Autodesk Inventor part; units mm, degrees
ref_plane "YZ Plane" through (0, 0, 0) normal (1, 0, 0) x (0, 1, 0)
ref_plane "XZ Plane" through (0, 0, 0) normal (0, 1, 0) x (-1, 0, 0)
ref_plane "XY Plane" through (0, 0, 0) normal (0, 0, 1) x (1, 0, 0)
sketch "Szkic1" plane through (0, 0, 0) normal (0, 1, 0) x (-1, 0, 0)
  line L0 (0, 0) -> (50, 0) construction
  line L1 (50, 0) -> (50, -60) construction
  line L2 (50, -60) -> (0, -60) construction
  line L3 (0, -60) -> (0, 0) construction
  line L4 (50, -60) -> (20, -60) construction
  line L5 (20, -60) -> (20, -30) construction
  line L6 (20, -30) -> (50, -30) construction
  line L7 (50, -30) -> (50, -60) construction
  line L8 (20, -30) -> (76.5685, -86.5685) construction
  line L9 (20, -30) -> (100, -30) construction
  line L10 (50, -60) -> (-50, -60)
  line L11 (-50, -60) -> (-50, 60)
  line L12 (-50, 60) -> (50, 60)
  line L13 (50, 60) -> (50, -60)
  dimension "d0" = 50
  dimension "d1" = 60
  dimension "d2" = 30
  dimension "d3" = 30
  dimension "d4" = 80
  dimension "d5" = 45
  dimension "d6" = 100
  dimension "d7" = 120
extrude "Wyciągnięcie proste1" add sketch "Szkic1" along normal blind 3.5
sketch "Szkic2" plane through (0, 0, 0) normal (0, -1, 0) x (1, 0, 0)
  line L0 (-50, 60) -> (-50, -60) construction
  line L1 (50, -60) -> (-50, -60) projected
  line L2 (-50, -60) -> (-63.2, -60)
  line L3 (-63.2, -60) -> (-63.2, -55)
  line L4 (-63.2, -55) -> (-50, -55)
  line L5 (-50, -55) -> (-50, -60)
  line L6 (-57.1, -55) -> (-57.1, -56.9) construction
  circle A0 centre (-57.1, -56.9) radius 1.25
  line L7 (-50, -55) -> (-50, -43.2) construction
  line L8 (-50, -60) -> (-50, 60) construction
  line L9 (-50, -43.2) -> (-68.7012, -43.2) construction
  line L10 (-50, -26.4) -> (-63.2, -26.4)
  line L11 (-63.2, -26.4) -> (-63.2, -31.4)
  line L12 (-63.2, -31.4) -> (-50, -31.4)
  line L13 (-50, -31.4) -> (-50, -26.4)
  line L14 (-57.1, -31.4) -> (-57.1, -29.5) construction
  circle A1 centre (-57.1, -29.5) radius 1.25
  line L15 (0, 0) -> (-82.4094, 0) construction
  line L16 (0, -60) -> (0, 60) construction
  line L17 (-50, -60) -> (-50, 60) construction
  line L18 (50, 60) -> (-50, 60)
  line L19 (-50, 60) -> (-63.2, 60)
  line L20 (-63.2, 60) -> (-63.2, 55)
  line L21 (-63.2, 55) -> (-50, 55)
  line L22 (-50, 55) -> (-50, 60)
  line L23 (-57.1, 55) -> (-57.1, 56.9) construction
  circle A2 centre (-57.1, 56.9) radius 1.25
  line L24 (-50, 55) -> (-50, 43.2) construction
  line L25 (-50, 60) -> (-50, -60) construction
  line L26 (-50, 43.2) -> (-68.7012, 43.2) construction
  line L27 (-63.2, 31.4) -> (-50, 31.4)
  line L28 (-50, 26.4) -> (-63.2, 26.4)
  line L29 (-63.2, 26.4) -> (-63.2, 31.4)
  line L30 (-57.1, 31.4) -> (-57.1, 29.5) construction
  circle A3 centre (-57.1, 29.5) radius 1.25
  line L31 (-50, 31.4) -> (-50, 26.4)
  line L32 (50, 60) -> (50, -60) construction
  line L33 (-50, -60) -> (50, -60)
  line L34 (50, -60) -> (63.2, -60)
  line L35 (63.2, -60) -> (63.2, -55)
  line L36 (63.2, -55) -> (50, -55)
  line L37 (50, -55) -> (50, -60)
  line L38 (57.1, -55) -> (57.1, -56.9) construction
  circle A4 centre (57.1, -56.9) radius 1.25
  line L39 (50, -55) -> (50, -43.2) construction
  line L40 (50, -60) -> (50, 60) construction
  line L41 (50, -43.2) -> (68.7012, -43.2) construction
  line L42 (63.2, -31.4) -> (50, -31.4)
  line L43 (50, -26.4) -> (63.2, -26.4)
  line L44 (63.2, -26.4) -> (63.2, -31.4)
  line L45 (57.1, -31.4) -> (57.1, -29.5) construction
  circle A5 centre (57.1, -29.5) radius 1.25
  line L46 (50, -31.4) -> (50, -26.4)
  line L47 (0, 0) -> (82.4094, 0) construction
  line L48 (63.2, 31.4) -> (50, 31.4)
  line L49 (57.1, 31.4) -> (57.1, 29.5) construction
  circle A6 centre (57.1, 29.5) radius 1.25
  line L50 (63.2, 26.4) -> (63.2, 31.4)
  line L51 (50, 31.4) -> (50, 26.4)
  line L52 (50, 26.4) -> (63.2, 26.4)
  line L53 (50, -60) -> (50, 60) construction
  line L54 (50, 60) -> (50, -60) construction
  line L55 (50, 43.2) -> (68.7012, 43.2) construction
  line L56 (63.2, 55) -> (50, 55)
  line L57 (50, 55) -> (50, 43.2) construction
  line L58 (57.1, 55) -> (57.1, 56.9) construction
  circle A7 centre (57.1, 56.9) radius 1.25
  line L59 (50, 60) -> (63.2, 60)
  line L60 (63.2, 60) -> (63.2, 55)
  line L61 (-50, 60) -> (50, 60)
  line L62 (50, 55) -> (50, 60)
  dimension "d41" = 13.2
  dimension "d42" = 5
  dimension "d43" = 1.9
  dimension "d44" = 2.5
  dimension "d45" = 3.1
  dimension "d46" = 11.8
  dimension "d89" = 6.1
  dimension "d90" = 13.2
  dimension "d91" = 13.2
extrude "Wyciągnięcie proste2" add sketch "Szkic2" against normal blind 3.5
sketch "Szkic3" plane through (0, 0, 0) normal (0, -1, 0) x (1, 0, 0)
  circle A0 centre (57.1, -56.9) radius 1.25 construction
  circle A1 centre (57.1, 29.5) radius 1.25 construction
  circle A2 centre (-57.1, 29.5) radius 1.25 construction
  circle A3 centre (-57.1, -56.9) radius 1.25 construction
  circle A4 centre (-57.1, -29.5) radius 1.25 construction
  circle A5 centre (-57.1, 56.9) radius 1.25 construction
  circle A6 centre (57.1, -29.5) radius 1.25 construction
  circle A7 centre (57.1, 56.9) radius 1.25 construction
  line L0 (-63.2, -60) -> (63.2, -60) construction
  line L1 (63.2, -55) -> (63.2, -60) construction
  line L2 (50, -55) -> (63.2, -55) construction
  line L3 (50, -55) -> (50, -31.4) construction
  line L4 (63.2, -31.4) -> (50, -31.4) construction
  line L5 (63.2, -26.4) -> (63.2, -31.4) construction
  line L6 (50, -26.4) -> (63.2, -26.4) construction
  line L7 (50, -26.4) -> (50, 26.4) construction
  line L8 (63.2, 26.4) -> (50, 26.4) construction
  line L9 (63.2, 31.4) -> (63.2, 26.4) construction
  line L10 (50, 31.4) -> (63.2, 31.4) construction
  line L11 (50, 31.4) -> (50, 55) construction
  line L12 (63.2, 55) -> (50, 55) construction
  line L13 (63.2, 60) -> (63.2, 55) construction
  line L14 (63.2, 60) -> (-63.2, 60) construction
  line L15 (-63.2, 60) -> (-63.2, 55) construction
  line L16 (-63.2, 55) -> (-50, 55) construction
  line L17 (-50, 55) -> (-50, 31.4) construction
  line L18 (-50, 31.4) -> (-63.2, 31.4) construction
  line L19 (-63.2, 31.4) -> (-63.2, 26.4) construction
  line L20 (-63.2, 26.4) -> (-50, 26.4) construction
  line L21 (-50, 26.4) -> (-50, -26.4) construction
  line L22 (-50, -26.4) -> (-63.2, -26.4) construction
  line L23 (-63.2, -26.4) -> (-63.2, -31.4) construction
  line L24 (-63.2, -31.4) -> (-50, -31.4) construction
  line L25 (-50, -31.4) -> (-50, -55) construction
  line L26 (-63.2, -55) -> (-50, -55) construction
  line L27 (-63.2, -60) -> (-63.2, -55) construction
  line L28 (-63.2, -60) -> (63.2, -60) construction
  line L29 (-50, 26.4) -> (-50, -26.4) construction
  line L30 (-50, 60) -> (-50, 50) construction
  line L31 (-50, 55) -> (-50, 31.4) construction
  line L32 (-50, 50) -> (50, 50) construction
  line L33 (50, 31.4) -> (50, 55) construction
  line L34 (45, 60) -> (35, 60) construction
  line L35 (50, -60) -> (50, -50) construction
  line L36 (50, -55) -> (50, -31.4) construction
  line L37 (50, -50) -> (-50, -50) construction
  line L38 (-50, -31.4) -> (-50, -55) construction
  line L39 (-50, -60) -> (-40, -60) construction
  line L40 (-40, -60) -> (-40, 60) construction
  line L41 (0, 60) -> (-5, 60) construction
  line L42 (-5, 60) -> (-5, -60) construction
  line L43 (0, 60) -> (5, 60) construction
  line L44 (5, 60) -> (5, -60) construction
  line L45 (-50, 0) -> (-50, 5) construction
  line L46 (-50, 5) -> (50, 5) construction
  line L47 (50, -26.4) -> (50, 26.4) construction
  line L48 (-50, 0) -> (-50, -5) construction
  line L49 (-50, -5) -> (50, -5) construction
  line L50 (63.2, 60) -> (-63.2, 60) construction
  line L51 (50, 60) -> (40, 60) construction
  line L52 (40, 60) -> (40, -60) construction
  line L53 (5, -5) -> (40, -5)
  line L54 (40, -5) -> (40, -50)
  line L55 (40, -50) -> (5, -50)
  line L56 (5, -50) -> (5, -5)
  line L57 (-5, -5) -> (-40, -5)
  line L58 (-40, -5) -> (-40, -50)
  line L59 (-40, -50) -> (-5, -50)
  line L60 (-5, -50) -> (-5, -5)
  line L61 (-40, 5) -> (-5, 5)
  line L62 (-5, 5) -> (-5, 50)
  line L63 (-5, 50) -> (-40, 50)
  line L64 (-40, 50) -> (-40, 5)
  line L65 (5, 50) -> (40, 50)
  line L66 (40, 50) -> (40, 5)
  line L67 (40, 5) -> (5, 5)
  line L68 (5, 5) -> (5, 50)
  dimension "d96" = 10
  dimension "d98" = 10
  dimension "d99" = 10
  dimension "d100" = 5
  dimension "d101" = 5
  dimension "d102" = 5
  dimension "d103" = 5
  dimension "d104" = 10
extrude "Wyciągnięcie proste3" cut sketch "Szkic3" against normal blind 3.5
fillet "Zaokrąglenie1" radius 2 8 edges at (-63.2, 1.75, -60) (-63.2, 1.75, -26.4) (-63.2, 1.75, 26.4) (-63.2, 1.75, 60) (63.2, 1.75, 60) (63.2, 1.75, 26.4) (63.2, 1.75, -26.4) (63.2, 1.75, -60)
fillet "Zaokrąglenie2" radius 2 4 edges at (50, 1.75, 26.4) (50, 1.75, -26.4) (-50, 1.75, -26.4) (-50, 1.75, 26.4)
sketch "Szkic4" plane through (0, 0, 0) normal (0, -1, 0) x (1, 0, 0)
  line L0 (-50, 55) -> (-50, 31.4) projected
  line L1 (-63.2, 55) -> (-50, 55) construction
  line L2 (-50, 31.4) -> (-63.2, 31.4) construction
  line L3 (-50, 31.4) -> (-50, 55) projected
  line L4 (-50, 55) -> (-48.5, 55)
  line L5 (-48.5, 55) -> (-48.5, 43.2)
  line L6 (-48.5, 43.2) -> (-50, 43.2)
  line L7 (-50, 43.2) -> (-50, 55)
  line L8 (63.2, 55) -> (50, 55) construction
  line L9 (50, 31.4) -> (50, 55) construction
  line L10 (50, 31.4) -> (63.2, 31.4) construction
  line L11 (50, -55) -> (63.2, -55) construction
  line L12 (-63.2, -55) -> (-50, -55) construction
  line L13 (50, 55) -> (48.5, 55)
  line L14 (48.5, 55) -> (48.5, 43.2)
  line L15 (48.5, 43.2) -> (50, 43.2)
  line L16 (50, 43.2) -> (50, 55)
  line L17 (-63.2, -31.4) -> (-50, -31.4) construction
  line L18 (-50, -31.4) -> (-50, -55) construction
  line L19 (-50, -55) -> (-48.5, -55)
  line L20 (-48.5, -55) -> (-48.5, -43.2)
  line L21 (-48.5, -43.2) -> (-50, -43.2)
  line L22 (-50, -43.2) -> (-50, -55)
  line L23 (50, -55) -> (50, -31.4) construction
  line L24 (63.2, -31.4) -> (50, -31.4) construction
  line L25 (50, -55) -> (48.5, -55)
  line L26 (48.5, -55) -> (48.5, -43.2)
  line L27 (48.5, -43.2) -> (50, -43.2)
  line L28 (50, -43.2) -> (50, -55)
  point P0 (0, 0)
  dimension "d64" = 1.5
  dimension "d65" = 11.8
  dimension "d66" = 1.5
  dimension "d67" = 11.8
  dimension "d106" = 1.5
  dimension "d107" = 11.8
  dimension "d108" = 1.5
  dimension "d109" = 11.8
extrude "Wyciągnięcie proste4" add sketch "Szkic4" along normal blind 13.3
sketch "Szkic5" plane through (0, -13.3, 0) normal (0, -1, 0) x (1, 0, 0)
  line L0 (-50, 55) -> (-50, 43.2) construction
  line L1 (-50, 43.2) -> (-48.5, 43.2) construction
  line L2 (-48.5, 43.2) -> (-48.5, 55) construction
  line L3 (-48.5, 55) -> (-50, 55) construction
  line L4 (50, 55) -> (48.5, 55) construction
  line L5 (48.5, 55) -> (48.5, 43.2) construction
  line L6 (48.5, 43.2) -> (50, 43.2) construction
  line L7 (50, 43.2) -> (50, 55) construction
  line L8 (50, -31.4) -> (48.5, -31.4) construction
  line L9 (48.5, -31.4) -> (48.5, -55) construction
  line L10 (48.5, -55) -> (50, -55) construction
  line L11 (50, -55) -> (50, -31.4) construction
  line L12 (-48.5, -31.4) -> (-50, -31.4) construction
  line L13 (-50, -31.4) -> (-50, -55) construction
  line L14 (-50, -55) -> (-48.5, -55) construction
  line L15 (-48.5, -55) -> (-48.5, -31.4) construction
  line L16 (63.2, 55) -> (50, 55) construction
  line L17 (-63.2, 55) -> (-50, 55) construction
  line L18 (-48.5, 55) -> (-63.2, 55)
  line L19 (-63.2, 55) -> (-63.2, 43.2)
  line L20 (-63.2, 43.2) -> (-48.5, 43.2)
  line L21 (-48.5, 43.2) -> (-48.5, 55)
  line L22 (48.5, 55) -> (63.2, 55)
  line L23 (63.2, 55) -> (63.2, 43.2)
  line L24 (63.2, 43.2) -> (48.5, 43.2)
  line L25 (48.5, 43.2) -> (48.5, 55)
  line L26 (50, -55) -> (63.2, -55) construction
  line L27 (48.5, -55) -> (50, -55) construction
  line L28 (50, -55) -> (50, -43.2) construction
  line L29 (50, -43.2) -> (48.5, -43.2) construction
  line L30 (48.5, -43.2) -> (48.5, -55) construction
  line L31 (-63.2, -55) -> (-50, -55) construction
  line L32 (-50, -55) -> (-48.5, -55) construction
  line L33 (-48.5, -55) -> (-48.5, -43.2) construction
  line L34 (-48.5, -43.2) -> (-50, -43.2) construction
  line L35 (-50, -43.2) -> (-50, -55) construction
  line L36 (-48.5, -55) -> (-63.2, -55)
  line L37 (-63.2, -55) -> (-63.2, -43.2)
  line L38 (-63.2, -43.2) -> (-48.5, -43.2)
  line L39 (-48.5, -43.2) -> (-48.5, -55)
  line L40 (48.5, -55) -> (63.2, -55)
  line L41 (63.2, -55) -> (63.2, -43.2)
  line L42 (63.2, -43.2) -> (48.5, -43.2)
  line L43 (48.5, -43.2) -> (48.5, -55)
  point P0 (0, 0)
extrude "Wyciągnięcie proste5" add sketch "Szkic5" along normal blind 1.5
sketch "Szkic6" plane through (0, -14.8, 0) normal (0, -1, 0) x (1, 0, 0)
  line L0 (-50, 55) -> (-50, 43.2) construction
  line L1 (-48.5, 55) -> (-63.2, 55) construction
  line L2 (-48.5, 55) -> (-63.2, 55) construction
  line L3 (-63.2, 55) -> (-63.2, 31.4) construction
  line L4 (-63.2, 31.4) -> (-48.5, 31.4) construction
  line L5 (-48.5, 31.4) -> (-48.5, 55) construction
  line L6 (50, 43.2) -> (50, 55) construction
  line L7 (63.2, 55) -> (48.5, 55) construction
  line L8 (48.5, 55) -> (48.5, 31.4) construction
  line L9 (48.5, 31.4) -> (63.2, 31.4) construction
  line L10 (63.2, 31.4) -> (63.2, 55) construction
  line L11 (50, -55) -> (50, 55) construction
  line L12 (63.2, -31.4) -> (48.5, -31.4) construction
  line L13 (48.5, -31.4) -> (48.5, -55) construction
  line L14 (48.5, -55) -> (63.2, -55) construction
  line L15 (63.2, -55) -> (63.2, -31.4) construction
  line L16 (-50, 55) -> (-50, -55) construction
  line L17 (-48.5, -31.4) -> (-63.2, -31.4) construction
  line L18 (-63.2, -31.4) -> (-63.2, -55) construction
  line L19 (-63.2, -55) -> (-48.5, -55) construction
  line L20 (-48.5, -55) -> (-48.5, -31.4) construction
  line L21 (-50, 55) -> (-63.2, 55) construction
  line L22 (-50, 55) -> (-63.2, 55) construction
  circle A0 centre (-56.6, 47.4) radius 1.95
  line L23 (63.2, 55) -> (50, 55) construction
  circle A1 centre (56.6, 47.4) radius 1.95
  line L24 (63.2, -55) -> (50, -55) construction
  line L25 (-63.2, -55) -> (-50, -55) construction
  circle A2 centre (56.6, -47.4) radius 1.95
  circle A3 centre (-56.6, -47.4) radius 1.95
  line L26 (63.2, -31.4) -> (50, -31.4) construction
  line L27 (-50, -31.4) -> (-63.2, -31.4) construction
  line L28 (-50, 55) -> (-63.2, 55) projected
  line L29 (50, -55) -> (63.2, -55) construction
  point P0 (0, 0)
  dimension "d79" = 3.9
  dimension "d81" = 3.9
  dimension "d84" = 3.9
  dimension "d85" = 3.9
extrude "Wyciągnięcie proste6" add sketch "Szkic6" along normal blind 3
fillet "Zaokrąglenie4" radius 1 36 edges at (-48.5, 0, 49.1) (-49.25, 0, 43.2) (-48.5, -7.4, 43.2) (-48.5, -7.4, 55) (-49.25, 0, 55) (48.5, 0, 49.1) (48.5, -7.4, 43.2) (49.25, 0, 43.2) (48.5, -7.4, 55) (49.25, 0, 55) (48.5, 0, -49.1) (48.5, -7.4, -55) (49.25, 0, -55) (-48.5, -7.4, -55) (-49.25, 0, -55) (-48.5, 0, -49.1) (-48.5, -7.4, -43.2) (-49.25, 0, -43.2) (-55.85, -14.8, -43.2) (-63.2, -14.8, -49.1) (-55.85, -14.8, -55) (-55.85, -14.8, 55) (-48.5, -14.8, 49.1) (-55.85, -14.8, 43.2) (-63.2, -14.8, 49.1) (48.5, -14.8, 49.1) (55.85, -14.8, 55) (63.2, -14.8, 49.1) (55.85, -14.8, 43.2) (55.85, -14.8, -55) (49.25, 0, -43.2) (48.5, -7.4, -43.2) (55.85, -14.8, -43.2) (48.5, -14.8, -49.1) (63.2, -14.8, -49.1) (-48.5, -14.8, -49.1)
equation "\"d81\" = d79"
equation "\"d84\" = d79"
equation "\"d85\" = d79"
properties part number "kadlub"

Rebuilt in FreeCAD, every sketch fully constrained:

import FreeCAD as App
import Part
import Sketcher
from FreeCAD import Vector


def edges_at(feature, points):
    """Names of the edges that pass closest to the given points."""
    edges = feature.Shape.Edges
    near = lambda p: min(range(len(edges)), key=lambda i: edges[i].distToShape(Part.Vertex(*p))[0])
    return sorted({f"Edge{near(p) + 1}" for p in points})

doc = App.newDocument("Part")
body = doc.addObject("PartDesign::Body", "Body")

# Sketch on XZ plane
sketch1 = body.newObject("Sketcher::SketchObject", "Sketch")
sketch1.AttachmentSupport = (doc.getObject("XZ_Plane"), [""])
sketch1.MapMode = "FlatFace"
sketch1.addGeometry(Part.LineSegment(Vector(50, -60, 0), Vector(-50, -60, 0)), False)
sketch1.addGeometry(Part.LineSegment(Vector(-50, -60, 0), Vector(-50, 60, 0)), False)
sketch1.addGeometry(Part.LineSegment(Vector(-50, 60, 0), Vector(50, 60, 0)), False)
sketch1.addGeometry(Part.LineSegment(Vector(50, 60, 0), Vector(50, -60, 0)), False)
sketch1.addConstraint(Sketcher.Constraint("Coincident", 0, 2, 1, 1))
sketch1.addConstraint(Sketcher.Constraint("Coincident", 1, 2, 2, 1))
sketch1.addConstraint(Sketcher.Constraint("Coincident", 2, 2, 3, 1))
sketch1.addConstraint(Sketcher.Constraint("Coincident", 3, 2, 0, 1))
sketch1.addConstraint(Sketcher.Constraint("Horizontal", 0))
sketch1.addConstraint(Sketcher.Constraint("Vertical", 1))
sketch1.addConstraint(Sketcher.Constraint("Horizontal", 2))
sketch1.addConstraint(Sketcher.Constraint("Vertical", 3))
sketch1.addConstraint(Sketcher.Constraint("Symmetric", 0, 2, 2, 2, -1, 1))
sketch1.addConstraint(Sketcher.Constraint("DistanceX", 0, 2, 0, 1, 100.0))
sketch1.addConstraint(Sketcher.Constraint("DistanceY", 1, 1, 1, 2, 120.0))
pad1 = body.newObject("PartDesign::Pad", "Pad")
pad1.Profile = sketch1
pad1.Length = 3.5
pad1.Reversed = True

# Sketch on XZ plane
sketch2 = body.newObject("Sketcher::SketchObject", "Sketch001")
sketch2.AttachmentSupport = (doc.getObject("XZ_Plane"), [""])
sketch2.MapMode = "FlatFace"
sketch2.addGeometry(Part.LineSegment(Vector(-63.2, -60, 0), Vector(-50, -60, 0)), False)
sketch2.addGeometry(Part.LineSegment(Vector(-50, -60, 0), Vector(-50, -55, 0)), False)
sketch2.addGeometry(Part.LineSegment(Vector(-50, -55, 0), Vector(-63.2, -55, 0)), False)
sketch2.addGeometry(Part.LineSegment(Vector(-63.2, -55, 0), Vector(-63.2, -60, 0)), False)
sketch2.addGeometry(Part.Circle(Vector(-57.1, -56.9, 0), Vector(0, 0, 1), 1.25), False)
sketch2.addGeometry(Part.LineSegment(Vector(50, -55, 0), Vector(50, -60, 0)), False)
sketch2.addGeometry(Part.LineSegment(Vector(50, -60, 0), Vector(63.2, -60, 0)), False)
sketch2.addGeometry(Part.LineSegment(Vector(63.2, -60, 0), Vector(63.2, -55, 0)), False)
sketch2.addGeometry(Part.LineSegment(Vector(63.2, -55, 0), Vector(50, -55, 0)), False)
sketch2.addGeometry(Part.Circle(Vector(57.1, -56.9, 0), Vector(0, 0, 1), 1.25), False)
sketch2.addGeometry(Part.LineSegment(Vector(-50, -31.4, 0), Vector(-50, -26.4, 0)), False)
sketch2.addGeometry(Part.LineSegment(Vector(-50, -26.4, 0), Vector(-63.2, -26.4, 0)), False)
sketch2.addGeometry(Part.LineSegment(Vector(-63.2, -26.4, 0), Vector(-63.2, -31.4, 0)), False)
sketch2.addGeometry(Part.LineSegment(Vector(-63.2, -31.4, 0), Vector(-50, -31.4, 0)), False)
sketch2.addGeometry(Part.Circle(Vector(-57.1, -29.5, 0), Vector(0, 0, 1), 1.25), False)
sketch2.addGeometry(Part.LineSegment(Vector(-50, 55, 0), Vector(-50, 60, 0)), False)
sketch2.addGeometry(Part.LineSegment(Vector(-50, 60, 0), Vector(-63.2, 60, 0)), False)
sketch2.addGeometry(Part.LineSegment(Vector(-63.2, 60, 0), Vector(-63.2, 55, 0)), False)
sketch2.addGeometry(Part.LineSegment(Vector(-63.2, 55, 0), Vector(-50, 55, 0)), False)
sketch2.addGeometry(Part.Circle(Vector(-57.1, 56.9, 0), Vector(0, 0, 1), 1.25), False)
sketch2.addGeometry(Part.LineSegment(Vector(63.2, 60, 0), Vector(50, 60, 0)), False)
sketch2.addGeometry(Part.LineSegment(Vector(50, 60, 0), Vector(50, 55, 0)), False)
sketch2.addGeometry(Part.LineSegment(Vector(50, 55, 0), Vector(63.2, 55, 0)), False)
sketch2.addGeometry(Part.LineSegment(Vector(63.2, 55, 0), Vector(63.2, 60, 0)), False)
sketch2.addGeometry(Part.Circle(Vector(57.1, 56.9, 0), Vector(0, 0, 1), 1.25), False)
sketch2.addGeometry(Part.LineSegment(Vector(-50, 31.4, 0), Vector(-63.2, 31.4, 0)), False)
sketch2.addGeometry(Part.LineSegment(Vector(-63.2, 31.4, 0), Vector(-63.2, 26.4, 0)), False)
sketch2.addGeometry(Part.LineSegment(Vector(-63.2, 26.4, 0), Vector(-50, 26.4, 0)), False)
sketch2.addGeometry(Part.LineSegment(Vector(-50, 26.4, 0), Vector(-50, 31.4, 0)), False)
sketch2.addGeometry(Part.Circle(Vector(-57.1, 29.5, 0), Vector(0, 0, 1), 1.25), False)
sketch2.addGeometry(Part.LineSegment(Vector(50, -31.4, 0), Vector(63.2, -31.4, 0)), False)
sketch2.addGeometry(Part.LineSegment(Vector(63.2, -31.4, 0), Vector(63.2, -26.4, 0)), False)
sketch2.addGeometry(Part.LineSegment(Vector(63.2, -26.4, 0), Vector(50, -26.4, 0)), False)
sketch2.addGeometry(Part.LineSegment(Vector(50, -26.4, 0), Vector(50, -31.4, 0)), False)
sketch2.addGeometry(Part.Circle(Vector(57.1, -29.5, 0), Vector(0, 0, 1), 1.25), False)
sketch2.addGeometry(Part.LineSegment(Vector(63.2, 26.4, 0), Vector(63.2, 31.4, 0)), False)
sketch2.addGeometry(Part.LineSegment(Vector(63.2, 31.4, 0), Vector(50, 31.4, 0)), False)
sketch2.addGeometry(Part.LineSegment(Vector(50, 31.4, 0), Vector(50, 26.4, 0)), False)
sketch2.addGeometry(Part.LineSegment(Vector(50, 26.4, 0), Vector(63.2, 26.4, 0)), False)
sketch2.addGeometry(Part.Circle(Vector(57.1, 29.5, 0), Vector(0, 0, 1), 1.25), False)
sketch2.addConstraint(Sketcher.Constraint("Coincident", 0, 2, 1, 1))
sketch2.addConstraint(Sketcher.Constraint("Coincident", 1, 2, 2, 1))
sketch2.addConstraint(Sketcher.Constraint("Coincident", 2, 2, 3, 1))
sketch2.addConstraint(Sketcher.Constraint("Coincident", 3, 2, 0, 1))
sketch2.addConstraint(Sketcher.Constraint("Coincident", 5, 2, 6, 1))
sketch2.addConstraint(Sketcher.Constraint("Coincident", 6, 2, 7, 1))
sketch2.addConstraint(Sketcher.Constraint("Coincident", 7, 2, 8, 1))
sketch2.addConstraint(Sketcher.Constraint("Coincident", 8, 2, 5, 1))
sketch2.addConstraint(Sketcher.Constraint("Coincident", 10, 2, 11, 1))
sketch2.addConstraint(Sketcher.Constraint("Coincident", 11, 2, 12, 1))
sketch2.addConstraint(Sketcher.Constraint("Coincident", 12, 2, 13, 1))
sketch2.addConstraint(Sketcher.Constraint("Coincident", 13, 2, 10, 1))
sketch2.addConstraint(Sketcher.Constraint("Coincident", 15, 2, 16, 1))
sketch2.addConstraint(Sketcher.Constraint("Coincident", 16, 2, 17, 1))
sketch2.addConstraint(Sketcher.Constraint("Coincident", 17, 2, 18, 1))
sketch2.addConstraint(Sketcher.Constraint("Coincident", 18, 2, 15, 1))
sketch2.addConstraint(Sketcher.Constraint("Coincident", 20, 2, 21, 1))
sketch2.addConstraint(Sketcher.Constraint("Coincident", 21, 2, 22, 1))
sketch2.addConstraint(Sketcher.Constraint("Coincident", 22, 2, 23, 1))
sketch2.addConstraint(Sketcher.Constraint("Coincident", 23, 2, 20, 1))
sketch2.addConstraint(Sketcher.Constraint("Coincident", 25, 2, 26, 1))
sketch2.addConstraint(Sketcher.Constraint("Coincident", 26, 2, 27, 1))
sketch2.addConstraint(Sketcher.Constraint("Coincident", 27, 2, 28, 1))
sketch2.addConstraint(Sketcher.Constraint("Coincident", 28, 2, 25, 1))
sketch2.addConstraint(Sketcher.Constraint("Coincident", 30, 2, 31, 1))
sketch2.addConstraint(Sketcher.Constraint("Coincident", 31, 2, 32, 1))
sketch2.addConstraint(Sketcher.Constraint("Coincident", 32, 2, 33, 1))
sketch2.addConstraint(Sketcher.Constraint("Coincident", 33, 2, 30, 1))
sketch2.addConstraint(Sketcher.Constraint("Coincident", 35, 2, 36, 1))
sketch2.addConstraint(Sketcher.Constraint("Coincident", 36, 2, 37, 1))
sketch2.addConstraint(Sketcher.Constraint("Coincident", 37, 2, 38, 1))
sketch2.addConstraint(Sketcher.Constraint("Coincident", 38, 2, 35, 1))
sketch2.addConstraint(Sketcher.Constraint("Horizontal", 0))
sketch2.addConstraint(Sketcher.Constraint("Vertical", 1))
sketch2.addConstraint(Sketcher.Constraint("Horizontal", 2))
sketch2.addConstraint(Sketcher.Constraint("Vertical", 3))
sketch2.addConstraint(Sketcher.Constraint("Vertical", 5))
sketch2.addConstraint(Sketcher.Constraint("Horizontal", 6))
sketch2.addConstraint(Sketcher.Constraint("Vertical", 7))
sketch2.addConstraint(Sketcher.Constraint("Horizontal", 8))
sketch2.addConstraint(Sketcher.Constraint("Vertical", 10))
sketch2.addConstraint(Sketcher.Constraint("Horizontal", 11))
sketch2.addConstraint(Sketcher.Constraint("Vertical", 12))
sketch2.addConstraint(Sketcher.Constraint("Horizontal", 13))
sketch2.addConstraint(Sketcher.Constraint("Vertical", 15))
sketch2.addConstraint(Sketcher.Constraint("Horizontal", 16))
sketch2.addConstraint(Sketcher.Constraint("Vertical", 17))
sketch2.addConstraint(Sketcher.Constraint("Horizontal", 18))
sketch2.addConstraint(Sketcher.Constraint("Horizontal", 20))
sketch2.addConstraint(Sketcher.Constraint("Vertical", 21))
sketch2.addConstraint(Sketcher.Constraint("Horizontal", 22))
sketch2.addConstraint(Sketcher.Constraint("Vertical", 23))
sketch2.addConstraint(Sketcher.Constraint("Horizontal", 25))
sketch2.addConstraint(Sketcher.Constraint("Vertical", 26))
sketch2.addConstraint(Sketcher.Constraint("Horizontal", 27))
sketch2.addConstraint(Sketcher.Constraint("Vertical", 28))
sketch2.addConstraint(Sketcher.Constraint("Horizontal", 30))
sketch2.addConstraint(Sketcher.Constraint("Vertical", 31))
sketch2.addConstraint(Sketcher.Constraint("Horizontal", 32))
sketch2.addConstraint(Sketcher.Constraint("Vertical", 33))
sketch2.addConstraint(Sketcher.Constraint("Vertical", 35))
sketch2.addConstraint(Sketcher.Constraint("Horizontal", 36))
sketch2.addConstraint(Sketcher.Constraint("Vertical", 37))
sketch2.addConstraint(Sketcher.Constraint("Horizontal", 38))
sketch2.addConstraint(Sketcher.Constraint("Equal", 4, 9))
sketch2.addConstraint(Sketcher.Constraint("Equal", 9, 14))
sketch2.addConstraint(Sketcher.Constraint("Equal", 14, 19))
sketch2.addConstraint(Sketcher.Constraint("Equal", 19, 24))
sketch2.addConstraint(Sketcher.Constraint("Equal", 24, 29))
sketch2.addConstraint(Sketcher.Constraint("Equal", 29, 34))
sketch2.addConstraint(Sketcher.Constraint("Equal", 34, 39))
sketch2.addConstraint(Sketcher.Constraint("Symmetric", 9, 3, 19, 3, -1, 1))
sketch2.addConstraint(Sketcher.Constraint("Symmetric", 4, 3, 24, 3, -1, 1))
sketch2.addConstraint(Sketcher.Constraint("Symmetric", 29, 3, 34, 3, -1, 1))
sketch2.addConstraint(Sketcher.Constraint("Symmetric", 14, 3, 39, 3, -1, 1))
sketch2.addConstraint(Sketcher.Constraint("Symmetric", 5, 2, 15, 2, -1, 1))
sketch2.addConstraint(Sketcher.Constraint("Symmetric", 7, 2, 17, 2, -1, 1))
sketch2.addConstraint(Sketcher.Constraint("Symmetric", 0, 2, 20, 2, -1, 1))
sketch2.addConstraint(Sketcher.Constraint("Symmetric", 2, 2, 22, 2, -1, 1))
sketch2.addConstraint(Sketcher.Constraint("Symmetric", 25, 2, 30, 2, -1, 1))
sketch2.addConstraint(Sketcher.Constraint("Symmetric", 27, 2, 32, 2, -1, 1))
sketch2.addConstraint(Sketcher.Constraint("Symmetric", 12, 2, 35, 2, -1, 1))
sketch2.addConstraint(Sketcher.Constraint("Symmetric", 10, 2, 37, 2, -1, 1))
sketch2.addConstraint(Sketcher.Constraint("Symmetric", 4, 3, 9, 3, -2))
sketch2.addConstraint(Sketcher.Constraint("Symmetric", 14, 3, 34, 3, -2))
sketch2.addConstraint(Sketcher.Constraint("Symmetric", 0, 2, 5, 2, -2))
sketch2.addConstraint(Sketcher.Constraint("Symmetric", 2, 2, 7, 2, -2))
sketch2.addConstraint(Sketcher.Constraint("Symmetric", 12, 2, 30, 2, -2))
sketch2.addConstraint(Sketcher.Constraint("Symmetric", 10, 2, 32, 2, -2))
sketch2.addConstraint(Sketcher.Constraint("Vertical", 4, 3, 14, 3))
sketch2.addConstraint(Sketcher.Constraint("Vertical", 1, 2, 10, 2))
sketch2.addConstraint(Sketcher.Constraint("Vertical", 3, 2, 11, 2))
sketch2.addConstraint(Sketcher.Constraint("Equal", 7, 10))
sketch2.addConstraint(Sketcher.Constraint("Diameter", 4, 2.5))
sketch2.addConstraint(Sketcher.Constraint("DistanceY", 1, 1, 1, 2, 5.0))
sketch2.addConstraint(Sketcher.Constraint("DistanceX", 0, 1, 0, 2, 13.2))
sketch2.addConstraint(Sketcher.Constraint("DistanceY", 0, 2, 4, 3, 3.1))
sketch2.addConstraint(Sketcher.Constraint("DistanceX", 2, 2, 4, 3, 6.1))
sketch2.addConstraint(Sketcher.Constraint("DistanceY", 14, 3, 10, 2, 3.1))
sketch2.addConstraint(Sketcher.Constraint("DistanceX", 0, 2, -1, 1, 50.0))
sketch2.addConstraint(Sketcher.Constraint("DistanceY", 0, 2, -1, 1, 60.0))
sketch2.addConstraint(Sketcher.Constraint("DistanceY", 14, 3, 29, 3, 59.0))
pad2 = body.newObject("PartDesign::Pad", "Pad001")
pad2.Profile = sketch2
pad2.Length = 3.5
pad2.Reversed = True

# Sketch on XZ plane
sketch3 = body.newObject("Sketcher::SketchObject", "Sketch002")
sketch3.AttachmentSupport = (doc.getObject("XZ_Plane"), [""])
sketch3.MapMode = "FlatFace"
sketch3.addGeometry(Part.LineSegment(Vector(40, -5, 0), Vector(5, -5, 0)), False)
sketch3.addGeometry(Part.LineSegment(Vector(5, -5, 0), Vector(5, -50, 0)), False)
sketch3.addGeometry(Part.LineSegment(Vector(5, -50, 0), Vector(40, -50, 0)), False)
sketch3.addGeometry(Part.LineSegment(Vector(40, -50, 0), Vector(40, -5, 0)), False)
sketch3.addGeometry(Part.LineSegment(Vector(-5, -50, 0), Vector(-5, -5, 0)), False)
sketch3.addGeometry(Part.LineSegment(Vector(-5, -5, 0), Vector(-40, -5, 0)), False)
sketch3.addGeometry(Part.LineSegment(Vector(-40, -5, 0), Vector(-40, -50, 0)), False)
sketch3.addGeometry(Part.LineSegment(Vector(-40, -50, 0), Vector(-5, -50, 0)), False)
sketch3.addGeometry(Part.LineSegment(Vector(-40, 50, 0), Vector(-40, 5, 0)), False)
sketch3.addGeometry(Part.LineSegment(Vector(-40, 5, 0), Vector(-5, 5, 0)), False)
sketch3.addGeometry(Part.LineSegment(Vector(-5, 5, 0), Vector(-5, 50, 0)), False)
sketch3.addGeometry(Part.LineSegment(Vector(-5, 50, 0), Vector(-40, 50, 0)), False)
sketch3.addGeometry(Part.LineSegment(Vector(40, 50, 0), Vector(5, 50, 0)), False)
sketch3.addGeometry(Part.LineSegment(Vector(5, 50, 0), Vector(5, 5, 0)), False)
sketch3.addGeometry(Part.LineSegment(Vector(5, 5, 0), Vector(40, 5, 0)), False)
sketch3.addGeometry(Part.LineSegment(Vector(40, 5, 0), Vector(40, 50, 0)), False)
sketch3.addConstraint(Sketcher.Constraint("Coincident", 0, 2, 1, 1))
sketch3.addConstraint(Sketcher.Constraint("Coincident", 1, 2, 2, 1))
sketch3.addConstraint(Sketcher.Constraint("Coincident", 2, 2, 3, 1))
sketch3.addConstraint(Sketcher.Constraint("Coincident", 3, 2, 0, 1))
sketch3.addConstraint(Sketcher.Constraint("Coincident", 4, 2, 5, 1))
sketch3.addConstraint(Sketcher.Constraint("Coincident", 5, 2, 6, 1))
sketch3.addConstraint(Sketcher.Constraint("Coincident", 6, 2, 7, 1))
sketch3.addConstraint(Sketcher.Constraint("Coincident", 7, 2, 4, 1))
sketch3.addConstraint(Sketcher.Constraint("Coincident", 8, 2, 9, 1))
sketch3.addConstraint(Sketcher.Constraint("Coincident", 9, 2, 10, 1))
sketch3.addConstraint(Sketcher.Constraint("Coincident", 10, 2, 11, 1))
sketch3.addConstraint(Sketcher.Constraint("Coincident", 11, 2, 8, 1))
sketch3.addConstraint(Sketcher.Constraint("Coincident", 12, 2, 13, 1))
sketch3.addConstraint(Sketcher.Constraint("Coincident", 13, 2, 14, 1))
sketch3.addConstraint(Sketcher.Constraint("Coincident", 14, 2, 15, 1))
sketch3.addConstraint(Sketcher.Constraint("Coincident", 15, 2, 12, 1))
sketch3.addConstraint(Sketcher.Constraint("Horizontal", 0))
sketch3.addConstraint(Sketcher.Constraint("Vertical", 1))
sketch3.addConstraint(Sketcher.Constraint("Horizontal", 2))
sketch3.addConstraint(Sketcher.Constraint("Vertical", 3))
sketch3.addConstraint(Sketcher.Constraint("Vertical", 4))
sketch3.addConstraint(Sketcher.Constraint("Horizontal", 5))
sketch3.addConstraint(Sketcher.Constraint("Vertical", 6))
sketch3.addConstraint(Sketcher.Constraint("Horizontal", 7))
sketch3.addConstraint(Sketcher.Constraint("Vertical", 8))
sketch3.addConstraint(Sketcher.Constraint("Horizontal", 9))
sketch3.addConstraint(Sketcher.Constraint("Vertical", 10))
sketch3.addConstraint(Sketcher.Constraint("Horizontal", 11))
sketch3.addConstraint(Sketcher.Constraint("Horizontal", 12))
sketch3.addConstraint(Sketcher.Constraint("Vertical", 13))
sketch3.addConstraint(Sketcher.Constraint("Horizontal", 14))
sketch3.addConstraint(Sketcher.Constraint("Vertical", 15))
sketch3.addConstraint(Sketcher.Constraint("Symmetric", 3, 2, 8, 2, -1, 1))
sketch3.addConstraint(Sketcher.Constraint("Symmetric", 1, 2, 10, 2, -1, 1))
sketch3.addConstraint(Sketcher.Constraint("Symmetric", 7, 2, 12, 2, -1, 1))
sketch3.addConstraint(Sketcher.Constraint("Symmetric", 5, 2, 14, 2, -1, 1))
sketch3.addConstraint(Sketcher.Constraint("Symmetric", 0, 2, 4, 2, -2))
sketch3.addConstraint(Sketcher.Constraint("Symmetric", 2, 2, 6, 2, -2))
sketch3.addConstraint(Sketcher.Constraint("DistanceX", -1, 1, 0, 2, 5.0))
sketch3.addConstraint(Sketcher.Constraint("DistanceY", 0, 2, -1, 1, 5.0))
sketch3.addConstraint(Sketcher.Constraint("DistanceX", 0, 2, 0, 1, 35.0))
sketch3.addConstraint(Sketcher.Constraint("DistanceY", 1, 2, 1, 1, 45.0))
pocket1 = body.newObject("PartDesign::Pocket", "Pocket")
pocket1.Profile = sketch3
pocket1.Length = 3.5
doc.recompute()

fillet = body.newObject("PartDesign::Fillet", "Fillet")
fillet.Base = (pocket1, edges_at(pocket1, [
    (-63.2, 1.75, -60),
    (-63.2, 1.75, -26.4),
    (-63.2, 1.75, 26.4),
    (-63.2, 1.75, 60),
    (63.2, 1.75, 60),
    (63.2, 1.75, 26.4),
    (63.2, 1.75, -26.4),
    (63.2, 1.75, -60),
]))
fillet.Radius = 2
doc.recompute()

fillet2 = body.newObject("PartDesign::Fillet", "Fillet001")
fillet2.Base = (fillet, edges_at(fillet, [
    (50, 1.75, 26.4),
    (50, 1.75, -26.4),
    (-50, 1.75, -26.4),
    (-50, 1.75, 26.4),
]))
fillet2.Radius = 2

# Sketch on XZ plane
sketch4 = body.newObject("Sketcher::SketchObject", "Sketch003")
sketch4.AttachmentSupport = (doc.getObject("XZ_Plane"), [""])
sketch4.MapMode = "FlatFace"
sketch4.addGeometry(Part.LineSegment(Vector(-48.5, 55, 0), Vector(-50, 55, 0)), False)
sketch4.addGeometry(Part.LineSegment(Vector(-50, 55, 0), Vector(-50, 43.2, 0)), False)
sketch4.addGeometry(Part.LineSegment(Vector(-50, 43.2, 0), Vector(-48.5, 43.2, 0)), False)
sketch4.addGeometry(Part.LineSegment(Vector(-48.5, 43.2, 0), Vector(-48.5, 55, 0)), False)
sketch4.addGeometry(Part.LineSegment(Vector(50, 43.2, 0), Vector(50, 55, 0)), False)
sketch4.addGeometry(Part.LineSegment(Vector(50, 55, 0), Vector(48.5, 55, 0)), False)
sketch4.addGeometry(Part.LineSegment(Vector(48.5, 55, 0), Vector(48.5, 43.2, 0)), False)
sketch4.addGeometry(Part.LineSegment(Vector(48.5, 43.2, 0), Vector(50, 43.2, 0)), False)
sketch4.addGeometry(Part.LineSegment(Vector(-50, -43.2, 0), Vector(-50, -55, 0)), False)
sketch4.addGeometry(Part.LineSegment(Vector(-50, -55, 0), Vector(-48.5, -55, 0)), False)
sketch4.addGeometry(Part.LineSegment(Vector(-48.5, -55, 0), Vector(-48.5, -43.2, 0)), False)
sketch4.addGeometry(Part.LineSegment(Vector(-48.5, -43.2, 0), Vector(-50, -43.2, 0)), False)
sketch4.addGeometry(Part.LineSegment(Vector(48.5, -55, 0), Vector(50, -55, 0)), False)
sketch4.addGeometry(Part.LineSegment(Vector(50, -55, 0), Vector(50, -43.2, 0)), False)
sketch4.addGeometry(Part.LineSegment(Vector(50, -43.2, 0), Vector(48.5, -43.2, 0)), False)
sketch4.addGeometry(Part.LineSegment(Vector(48.5, -43.2, 0), Vector(48.5, -55, 0)), False)
sketch4.addConstraint(Sketcher.Constraint("Coincident", 0, 2, 1, 1))
sketch4.addConstraint(Sketcher.Constraint("Coincident", 1, 2, 2, 1))
sketch4.addConstraint(Sketcher.Constraint("Coincident", 2, 2, 3, 1))
sketch4.addConstraint(Sketcher.Constraint("Coincident", 3, 2, 0, 1))
sketch4.addConstraint(Sketcher.Constraint("Coincident", 4, 2, 5, 1))
sketch4.addConstraint(Sketcher.Constraint("Coincident", 5, 2, 6, 1))
sketch4.addConstraint(Sketcher.Constraint("Coincident", 6, 2, 7, 1))
sketch4.addConstraint(Sketcher.Constraint("Coincident", 7, 2, 4, 1))
sketch4.addConstraint(Sketcher.Constraint("Coincident", 8, 2, 9, 1))
sketch4.addConstraint(Sketcher.Constraint("Coincident", 9, 2, 10, 1))
sketch4.addConstraint(Sketcher.Constraint("Coincident", 10, 2, 11, 1))
sketch4.addConstraint(Sketcher.Constraint("Coincident", 11, 2, 8, 1))
sketch4.addConstraint(Sketcher.Constraint("Coincident", 12, 2, 13, 1))
sketch4.addConstraint(Sketcher.Constraint("Coincident", 13, 2, 14, 1))
sketch4.addConstraint(Sketcher.Constraint("Coincident", 14, 2, 15, 1))
sketch4.addConstraint(Sketcher.Constraint("Coincident", 15, 2, 12, 1))
sketch4.addConstraint(Sketcher.Constraint("Horizontal", 0))
sketch4.addConstraint(Sketcher.Constraint("Vertical", 1))
sketch4.addConstraint(Sketcher.Constraint("Horizontal", 2))
sketch4.addConstraint(Sketcher.Constraint("Vertical", 3))
sketch4.addConstraint(Sketcher.Constraint("Vertical", 4))
sketch4.addConstraint(Sketcher.Constraint("Horizontal", 5))
sketch4.addConstraint(Sketcher.Constraint("Vertical", 6))
sketch4.addConstraint(Sketcher.Constraint("Horizontal", 7))
sketch4.addConstraint(Sketcher.Constraint("Vertical", 8))
sketch4.addConstraint(Sketcher.Constraint("Horizontal", 9))
sketch4.addConstraint(Sketcher.Constraint("Vertical", 10))
sketch4.addConstraint(Sketcher.Constraint("Horizontal", 11))
sketch4.addConstraint(Sketcher.Constraint("Horizontal", 12))
sketch4.addConstraint(Sketcher.Constraint("Vertical", 13))
sketch4.addConstraint(Sketcher.Constraint("Horizontal", 14))
sketch4.addConstraint(Sketcher.Constraint("Vertical", 15))
sketch4.addConstraint(Sketcher.Constraint("Symmetric", 4, 2, 8, 2, -1, 1))
sketch4.addConstraint(Sketcher.Constraint("Symmetric", 6, 2, 10, 2, -1, 1))
sketch4.addConstraint(Sketcher.Constraint("Symmetric", 0, 2, 12, 2, -1, 1))
sketch4.addConstraint(Sketcher.Constraint("Symmetric", 2, 2, 14, 2, -1, 1))
sketch4.addConstraint(Sketcher.Constraint("Symmetric", 0, 2, 4, 2, -2))
sketch4.addConstraint(Sketcher.Constraint("Symmetric", 2, 2, 6, 2, -2))
sketch4.addConstraint(Sketcher.Constraint("DistanceX", 0, 2, 0, 1, 1.5))
sketch4.addConstraint(Sketcher.Constraint("DistanceY", 1, 2, 1, 1, 11.8))
sketch4.addConstraint(Sketcher.Constraint("DistanceX", 0, 2, -1, 1, 50.0))
sketch4.addConstraint(Sketcher.Constraint("DistanceY", -1, 1, 0, 2, 55.0))
pad3 = body.newObject("PartDesign::Pad", "Pad002")
pad3.Profile = sketch4
pad3.Length = 13.3

# Sketch on XZ plane
sketch5 = body.newObject("Sketcher::SketchObject", "Sketch004")
sketch5.AttachmentSupport = (doc.getObject("XZ_Plane"), [""])
sketch5.MapMode = "FlatFace"
sketch5.AttachmentOffset = App.Placement(Vector(0, 0, 13.3), App.Rotation())
sketch5.addGeometry(Part.LineSegment(Vector(-48.5, 43.2, 0), Vector(-48.5, 55, 0)), False)
sketch5.addGeometry(Part.LineSegment(Vector(-48.5, 55, 0), Vector(-63.2, 55, 0)), False)
sketch5.addGeometry(Part.LineSegment(Vector(-63.2, 55, 0), Vector(-63.2, 43.2, 0)), False)
sketch5.addGeometry(Part.LineSegment(Vector(-63.2, 43.2, 0), Vector(-48.5, 43.2, 0)), False)
sketch5.addGeometry(Part.LineSegment(Vector(63.2, 55, 0), Vector(48.5, 55, 0)), False)
sketch5.addGeometry(Part.LineSegment(Vector(48.5, 55, 0), Vector(48.5, 43.2, 0)), False)
sketch5.addGeometry(Part.LineSegment(Vector(48.5, 43.2, 0), Vector(63.2, 43.2, 0)), False)
sketch5.addGeometry(Part.LineSegment(Vector(63.2, 43.2, 0), Vector(63.2, 55, 0)), False)
sketch5.addGeometry(Part.LineSegment(Vector(-63.2, -55, 0), Vector(-48.5, -55, 0)), False)
sketch5.addGeometry(Part.LineSegment(Vector(-48.5, -55, 0), Vector(-48.5, -43.2, 0)), False)
sketch5.addGeometry(Part.LineSegment(Vector(-48.5, -43.2, 0), Vector(-63.2, -43.2, 0)), False)
sketch5.addGeometry(Part.LineSegment(Vector(-63.2, -43.2, 0), Vector(-63.2, -55, 0)), False)
sketch5.addGeometry(Part.LineSegment(Vector(48.5, -43.2, 0), Vector(48.5, -55, 0)), False)
sketch5.addGeometry(Part.LineSegment(Vector(48.5, -55, 0), Vector(63.2, -55, 0)), False)
sketch5.addGeometry(Part.LineSegment(Vector(63.2, -55, 0), Vector(63.2, -43.2, 0)), False)
sketch5.addGeometry(Part.LineSegment(Vector(63.2, -43.2, 0), Vector(48.5, -43.2, 0)), False)
sketch5.addConstraint(Sketcher.Constraint("Coincident", 0, 2, 1, 1))
sketch5.addConstraint(Sketcher.Constraint("Coincident", 1, 2, 2, 1))
sketch5.addConstraint(Sketcher.Constraint("Coincident", 2, 2, 3, 1))
sketch5.addConstraint(Sketcher.Constraint("Coincident", 3, 2, 0, 1))
sketch5.addConstraint(Sketcher.Constraint("Coincident", 4, 2, 5, 1))
sketch5.addConstraint(Sketcher.Constraint("Coincident", 5, 2, 6, 1))
sketch5.addConstraint(Sketcher.Constraint("Coincident", 6, 2, 7, 1))
sketch5.addConstraint(Sketcher.Constraint("Coincident", 7, 2, 4, 1))
sketch5.addConstraint(Sketcher.Constraint("Coincident", 8, 2, 9, 1))
sketch5.addConstraint(Sketcher.Constraint("Coincident", 9, 2, 10, 1))
sketch5.addConstraint(Sketcher.Constraint("Coincident", 10, 2, 11, 1))
sketch5.addConstraint(Sketcher.Constraint("Coincident", 11, 2, 8, 1))
sketch5.addConstraint(Sketcher.Constraint("Coincident", 12, 2, 13, 1))
sketch5.addConstraint(Sketcher.Constraint("Coincident", 13, 2, 14, 1))
sketch5.addConstraint(Sketcher.Constraint("Coincident", 14, 2, 15, 1))
sketch5.addConstraint(Sketcher.Constraint("Coincident", 15, 2, 12, 1))
sketch5.addConstraint(Sketcher.Constraint("Vertical", 0))
sketch5.addConstraint(Sketcher.Constraint("Horizontal", 1))
sketch5.addConstraint(Sketcher.Constraint("Vertical", 2))
sketch5.addConstraint(Sketcher.Constraint("Horizontal", 3))
sketch5.addConstraint(Sketcher.Constraint("Horizontal", 4))
sketch5.addConstraint(Sketcher.Constraint("Vertical", 5))
sketch5.addConstraint(Sketcher.Constraint("Horizontal", 6))
sketch5.addConstraint(Sketcher.Constraint("Vertical", 7))
sketch5.addConstraint(Sketcher.Constraint("Horizontal", 8))
sketch5.addConstraint(Sketcher.Constraint("Vertical", 9))
sketch5.addConstraint(Sketcher.Constraint("Horizontal", 10))
sketch5.addConstraint(Sketcher.Constraint("Vertical", 11))
sketch5.addConstraint(Sketcher.Constraint("Vertical", 12))
sketch5.addConstraint(Sketcher.Constraint("Horizontal", 13))
sketch5.addConstraint(Sketcher.Constraint("Vertical", 14))
sketch5.addConstraint(Sketcher.Constraint("Horizontal", 15))
sketch5.addConstraint(Sketcher.Constraint("Symmetric", 4, 2, 8, 2, -1, 1))
sketch5.addConstraint(Sketcher.Constraint("Symmetric", 6, 2, 10, 2, -1, 1))
sketch5.addConstraint(Sketcher.Constraint("Symmetric", 0, 2, 12, 2, -1, 1))
sketch5.addConstraint(Sketcher.Constraint("Symmetric", 2, 2, 14, 2, -1, 1))
sketch5.addConstraint(Sketcher.Constraint("Symmetric", 0, 2, 4, 2, -2))
sketch5.addConstraint(Sketcher.Constraint("Symmetric", 2, 2, 6, 2, -2))
sketch5.addConstraint(Sketcher.Constraint("DistanceX", 1, 2, 1, 1, 14.7))
sketch5.addConstraint(Sketcher.Constraint("DistanceY", 0, 1, 0, 2, 11.8))
sketch5.addConstraint(Sketcher.Constraint("DistanceY", -1, 1, 0, 2, 55.0))
sketch5.addConstraint(Sketcher.Constraint("DistanceX", 0, 2, 4, 2, 97.0))
pad4 = body.newObject("PartDesign::Pad", "Pad003")
pad4.Profile = sketch5
pad4.Length = 1.5

# Sketch on XZ plane
sketch6 = body.newObject("Sketcher::SketchObject", "Sketch005")
sketch6.AttachmentSupport = (doc.getObject("XZ_Plane"), [""])
sketch6.MapMode = "FlatFace"
sketch6.AttachmentOffset = App.Placement(Vector(0, 0, 14.8), App.Rotation())
sketch6.addGeometry(Part.Circle(Vector(-56.6, 47.4, 0), Vector(0, 0, 1), 1.95), False)
sketch6.addGeometry(Part.Circle(Vector(56.6, 47.4, 0), Vector(0, 0, 1), 1.95), False)
sketch6.addGeometry(Part.Circle(Vector(56.6, -47.4, 0), Vector(0, 0, 1), 1.95), False)
sketch6.addGeometry(Part.Circle(Vector(-56.6, -47.4, 0), Vector(0, 0, 1), 1.95), False)
sketch6.addConstraint(Sketcher.Constraint("Equal", 0, 1))
sketch6.addConstraint(Sketcher.Constraint("Equal", 1, 2))
sketch6.addConstraint(Sketcher.Constraint("Equal", 2, 3))
sketch6.addConstraint(Sketcher.Constraint("Symmetric", 0, 3, 2, 3, -1, 1))
sketch6.addConstraint(Sketcher.Constraint("Symmetric", 1, 3, 3, 3, -1, 1))
sketch6.addConstraint(Sketcher.Constraint("Symmetric", 0, 3, 1, 3, -2))
sketch6.addConstraint(Sketcher.Constraint("Diameter", 0, 3.9))
sketch6.addConstraint(Sketcher.Constraint("DistanceX", 0, 3, -1, 1, 56.6))
sketch6.addConstraint(Sketcher.Constraint("DistanceY", -1, 1, 0, 3, 47.4))
pad5 = body.newObject("PartDesign::Pad", "Pad004")
pad5.Profile = sketch6
pad5.Length = 3
doc.recompute()

fillet3 = body.newObject("PartDesign::Fillet", "Fillet002")
fillet3.Base = (pad5, edges_at(pad5, [
    (-48.5, 0, 49.1),
    (-49.25, 0, 43.2),
    (-48.5, -7.4, 43.2),
    (-48.5, -7.4, 55),
    (-49.25, 0, 55),
    (48.5, 0, 49.1),
    (48.5, -7.4, 43.2),
    (49.25, 0, 43.2),
    (48.5, -7.4, 55),
    (49.25, 0, 55),
    (48.5, 0, -49.1),
    (48.5, -7.4, -55),
    (49.25, 0, -55),
    (-48.5, -7.4, -55),
    (-49.25, 0, -55),
    (-48.5, 0, -49.1),
    (-48.5, -7.4, -43.2),
    (-49.25, 0, -43.2),
    (-55.85, -14.8, -43.2),
    (-63.2, -14.8, -49.1),
    (-55.85, -14.8, -55),
    (-55.85, -14.8, 55),
    (-48.5, -14.8, 49.1),
    (-55.85, -14.8, 43.2),
    (-63.2, -14.8, 49.1),
    (48.5, -14.8, 49.1),
    (55.85, -14.8, 55),
    (63.2, -14.8, 49.1),
    (55.85, -14.8, 43.2),
    (55.85, -14.8, -55),
    (49.25, 0, -43.2),
    (48.5, -7.4, -43.2),
    (55.85, -14.8, -43.2),
    (48.5, -14.8, -49.1),
    (63.2, -14.8, -49.1),
    (-48.5, -14.8, -49.1),
]))
fillet3.Radius = 1

doc.recompute()
